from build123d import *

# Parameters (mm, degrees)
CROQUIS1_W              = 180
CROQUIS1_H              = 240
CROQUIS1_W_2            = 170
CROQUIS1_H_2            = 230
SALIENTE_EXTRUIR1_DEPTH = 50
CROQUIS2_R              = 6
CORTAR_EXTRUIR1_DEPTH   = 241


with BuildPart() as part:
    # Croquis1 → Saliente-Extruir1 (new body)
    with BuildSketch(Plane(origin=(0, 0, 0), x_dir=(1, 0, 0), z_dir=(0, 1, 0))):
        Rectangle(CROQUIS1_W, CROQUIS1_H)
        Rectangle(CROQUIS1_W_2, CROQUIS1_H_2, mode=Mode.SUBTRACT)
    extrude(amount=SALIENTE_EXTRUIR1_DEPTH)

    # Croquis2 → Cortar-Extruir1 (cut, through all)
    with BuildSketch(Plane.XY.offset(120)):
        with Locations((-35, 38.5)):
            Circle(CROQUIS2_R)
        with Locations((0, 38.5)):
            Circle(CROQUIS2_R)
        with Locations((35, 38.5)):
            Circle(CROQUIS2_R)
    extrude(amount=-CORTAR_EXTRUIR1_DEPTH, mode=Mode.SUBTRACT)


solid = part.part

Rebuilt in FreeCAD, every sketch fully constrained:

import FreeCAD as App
import Part
import Sketcher
Q = App.Units.Quantity


def add_polygon(sketch, points):
    """Adds a closed chain of lines whose ends are joined by coincident constraints."""
    first, n = sketch.GeometryCount, len(points)
    for a, b in zip(points, points[1:] + points[:1]):
        sketch.addGeometry(Part.LineSegment(App.Vector(*a, 0), App.Vector(*b, 0)), False)
    for i in range(n):
        sketch.addConstraint(Sketcher.Constraint("Coincident", first + i, 2, first + (i + 1) % n, 1))

doc = App.newDocument("Part")
body = doc.addObject("PartDesign::Body", "Body")

sketch1 = body.newObject("Sketcher::SketchObject", "Sketch")
sketch1.AttachmentSupport = (doc.getObject("XZ_Plane"), [""])
sketch1.MapMode = "FlatFace"
add_polygon(sketch1, [(-90, -120), (-90, 120), (90, 120), (90, -120)])
add_polygon(sketch1, [(85, 115), (-85, 115), (-85, -115), (85, -115)])
sketch1.addConstraint([
    Sketcher.Constraint("Vertical", 0),
    Sketcher.Constraint("Horizontal", 1),
    Sketcher.Constraint("Vertical", 2),
    Sketcher.Constraint("Horizontal", 3),
    Sketcher.Constraint("Horizontal", 4),
    Sketcher.Constraint("Vertical", 5),
    Sketcher.Constraint("Horizontal", 6),
    Sketcher.Constraint("Vertical", 7),
    Sketcher.Constraint("Symmetric", 0, 2, 2, 2, -1, 1),
    Sketcher.Constraint("Symmetric", 4, 2, 6, 2, -1, 1),
    Sketcher.Constraint("DistanceX", 1, 1, 1, 2, Q("180 mm")),
    Sketcher.Constraint("DistanceX", 4, 2, 4, 1, Q("170 mm")),
    Sketcher.Constraint("DistanceY", 0, 1, 0, 2, Q("240 mm")),
    Sketcher.Constraint("DistanceY", 5, 2, 5, 1, Q("230 mm")),
])
pad1 = body.newObject("PartDesign::Pad", "Pad")
pad1.Profile = sketch1
pad1.Length = 50
pad1.Reversed = True

sketch2 = body.newObject("Sketcher::SketchObject", "Sketch001")
sketch2.AttachmentSupport = (doc.getObject("XY_Plane"), [""])
sketch2.MapMode = "FlatFace"
sketch2.AttachmentOffset = App.Placement(App.Vector(0, 0, 120), App.Rotation())
sketch2.addGeometry([
    Part.Circle(App.Vector(-35, 38, 0), App.Vector(0, 0, 1), 6),
    Part.Circle(App.Vector(0, 38, 0), App.Vector(0, 0, 1), 6),
    Part.Circle(App.Vector(35, 38, 0), App.Vector(0, 0, 1), 6),
], False)
sketch2.addConstraint([
    Sketcher.Constraint("Equal", 0, 1),
    Sketcher.Constraint("Equal", 1, 2),
    Sketcher.Constraint("Symmetric", 0, 3, 2, 3, -2),
    Sketcher.Constraint("PointOnObject", 1, 3, -2),
    Sketcher.Constraint("Horizontal", 0, 3, 1, 3),
    Sketcher.Constraint("Diameter", 0, Q("12 mm")),
    Sketcher.Constraint("DistanceX", 0, 3, -1, 1, Q("35 mm")),
    Sketcher.Constraint("DistanceY", -1, 1, 0, 3, Q("38.5 mm")),
])
pocket1 = body.newObject("PartDesign::Pocket", "Pocket")
pocket1.Profile = sketch2
pocket1.Type = "ThroughAll"

doc.recompute()
